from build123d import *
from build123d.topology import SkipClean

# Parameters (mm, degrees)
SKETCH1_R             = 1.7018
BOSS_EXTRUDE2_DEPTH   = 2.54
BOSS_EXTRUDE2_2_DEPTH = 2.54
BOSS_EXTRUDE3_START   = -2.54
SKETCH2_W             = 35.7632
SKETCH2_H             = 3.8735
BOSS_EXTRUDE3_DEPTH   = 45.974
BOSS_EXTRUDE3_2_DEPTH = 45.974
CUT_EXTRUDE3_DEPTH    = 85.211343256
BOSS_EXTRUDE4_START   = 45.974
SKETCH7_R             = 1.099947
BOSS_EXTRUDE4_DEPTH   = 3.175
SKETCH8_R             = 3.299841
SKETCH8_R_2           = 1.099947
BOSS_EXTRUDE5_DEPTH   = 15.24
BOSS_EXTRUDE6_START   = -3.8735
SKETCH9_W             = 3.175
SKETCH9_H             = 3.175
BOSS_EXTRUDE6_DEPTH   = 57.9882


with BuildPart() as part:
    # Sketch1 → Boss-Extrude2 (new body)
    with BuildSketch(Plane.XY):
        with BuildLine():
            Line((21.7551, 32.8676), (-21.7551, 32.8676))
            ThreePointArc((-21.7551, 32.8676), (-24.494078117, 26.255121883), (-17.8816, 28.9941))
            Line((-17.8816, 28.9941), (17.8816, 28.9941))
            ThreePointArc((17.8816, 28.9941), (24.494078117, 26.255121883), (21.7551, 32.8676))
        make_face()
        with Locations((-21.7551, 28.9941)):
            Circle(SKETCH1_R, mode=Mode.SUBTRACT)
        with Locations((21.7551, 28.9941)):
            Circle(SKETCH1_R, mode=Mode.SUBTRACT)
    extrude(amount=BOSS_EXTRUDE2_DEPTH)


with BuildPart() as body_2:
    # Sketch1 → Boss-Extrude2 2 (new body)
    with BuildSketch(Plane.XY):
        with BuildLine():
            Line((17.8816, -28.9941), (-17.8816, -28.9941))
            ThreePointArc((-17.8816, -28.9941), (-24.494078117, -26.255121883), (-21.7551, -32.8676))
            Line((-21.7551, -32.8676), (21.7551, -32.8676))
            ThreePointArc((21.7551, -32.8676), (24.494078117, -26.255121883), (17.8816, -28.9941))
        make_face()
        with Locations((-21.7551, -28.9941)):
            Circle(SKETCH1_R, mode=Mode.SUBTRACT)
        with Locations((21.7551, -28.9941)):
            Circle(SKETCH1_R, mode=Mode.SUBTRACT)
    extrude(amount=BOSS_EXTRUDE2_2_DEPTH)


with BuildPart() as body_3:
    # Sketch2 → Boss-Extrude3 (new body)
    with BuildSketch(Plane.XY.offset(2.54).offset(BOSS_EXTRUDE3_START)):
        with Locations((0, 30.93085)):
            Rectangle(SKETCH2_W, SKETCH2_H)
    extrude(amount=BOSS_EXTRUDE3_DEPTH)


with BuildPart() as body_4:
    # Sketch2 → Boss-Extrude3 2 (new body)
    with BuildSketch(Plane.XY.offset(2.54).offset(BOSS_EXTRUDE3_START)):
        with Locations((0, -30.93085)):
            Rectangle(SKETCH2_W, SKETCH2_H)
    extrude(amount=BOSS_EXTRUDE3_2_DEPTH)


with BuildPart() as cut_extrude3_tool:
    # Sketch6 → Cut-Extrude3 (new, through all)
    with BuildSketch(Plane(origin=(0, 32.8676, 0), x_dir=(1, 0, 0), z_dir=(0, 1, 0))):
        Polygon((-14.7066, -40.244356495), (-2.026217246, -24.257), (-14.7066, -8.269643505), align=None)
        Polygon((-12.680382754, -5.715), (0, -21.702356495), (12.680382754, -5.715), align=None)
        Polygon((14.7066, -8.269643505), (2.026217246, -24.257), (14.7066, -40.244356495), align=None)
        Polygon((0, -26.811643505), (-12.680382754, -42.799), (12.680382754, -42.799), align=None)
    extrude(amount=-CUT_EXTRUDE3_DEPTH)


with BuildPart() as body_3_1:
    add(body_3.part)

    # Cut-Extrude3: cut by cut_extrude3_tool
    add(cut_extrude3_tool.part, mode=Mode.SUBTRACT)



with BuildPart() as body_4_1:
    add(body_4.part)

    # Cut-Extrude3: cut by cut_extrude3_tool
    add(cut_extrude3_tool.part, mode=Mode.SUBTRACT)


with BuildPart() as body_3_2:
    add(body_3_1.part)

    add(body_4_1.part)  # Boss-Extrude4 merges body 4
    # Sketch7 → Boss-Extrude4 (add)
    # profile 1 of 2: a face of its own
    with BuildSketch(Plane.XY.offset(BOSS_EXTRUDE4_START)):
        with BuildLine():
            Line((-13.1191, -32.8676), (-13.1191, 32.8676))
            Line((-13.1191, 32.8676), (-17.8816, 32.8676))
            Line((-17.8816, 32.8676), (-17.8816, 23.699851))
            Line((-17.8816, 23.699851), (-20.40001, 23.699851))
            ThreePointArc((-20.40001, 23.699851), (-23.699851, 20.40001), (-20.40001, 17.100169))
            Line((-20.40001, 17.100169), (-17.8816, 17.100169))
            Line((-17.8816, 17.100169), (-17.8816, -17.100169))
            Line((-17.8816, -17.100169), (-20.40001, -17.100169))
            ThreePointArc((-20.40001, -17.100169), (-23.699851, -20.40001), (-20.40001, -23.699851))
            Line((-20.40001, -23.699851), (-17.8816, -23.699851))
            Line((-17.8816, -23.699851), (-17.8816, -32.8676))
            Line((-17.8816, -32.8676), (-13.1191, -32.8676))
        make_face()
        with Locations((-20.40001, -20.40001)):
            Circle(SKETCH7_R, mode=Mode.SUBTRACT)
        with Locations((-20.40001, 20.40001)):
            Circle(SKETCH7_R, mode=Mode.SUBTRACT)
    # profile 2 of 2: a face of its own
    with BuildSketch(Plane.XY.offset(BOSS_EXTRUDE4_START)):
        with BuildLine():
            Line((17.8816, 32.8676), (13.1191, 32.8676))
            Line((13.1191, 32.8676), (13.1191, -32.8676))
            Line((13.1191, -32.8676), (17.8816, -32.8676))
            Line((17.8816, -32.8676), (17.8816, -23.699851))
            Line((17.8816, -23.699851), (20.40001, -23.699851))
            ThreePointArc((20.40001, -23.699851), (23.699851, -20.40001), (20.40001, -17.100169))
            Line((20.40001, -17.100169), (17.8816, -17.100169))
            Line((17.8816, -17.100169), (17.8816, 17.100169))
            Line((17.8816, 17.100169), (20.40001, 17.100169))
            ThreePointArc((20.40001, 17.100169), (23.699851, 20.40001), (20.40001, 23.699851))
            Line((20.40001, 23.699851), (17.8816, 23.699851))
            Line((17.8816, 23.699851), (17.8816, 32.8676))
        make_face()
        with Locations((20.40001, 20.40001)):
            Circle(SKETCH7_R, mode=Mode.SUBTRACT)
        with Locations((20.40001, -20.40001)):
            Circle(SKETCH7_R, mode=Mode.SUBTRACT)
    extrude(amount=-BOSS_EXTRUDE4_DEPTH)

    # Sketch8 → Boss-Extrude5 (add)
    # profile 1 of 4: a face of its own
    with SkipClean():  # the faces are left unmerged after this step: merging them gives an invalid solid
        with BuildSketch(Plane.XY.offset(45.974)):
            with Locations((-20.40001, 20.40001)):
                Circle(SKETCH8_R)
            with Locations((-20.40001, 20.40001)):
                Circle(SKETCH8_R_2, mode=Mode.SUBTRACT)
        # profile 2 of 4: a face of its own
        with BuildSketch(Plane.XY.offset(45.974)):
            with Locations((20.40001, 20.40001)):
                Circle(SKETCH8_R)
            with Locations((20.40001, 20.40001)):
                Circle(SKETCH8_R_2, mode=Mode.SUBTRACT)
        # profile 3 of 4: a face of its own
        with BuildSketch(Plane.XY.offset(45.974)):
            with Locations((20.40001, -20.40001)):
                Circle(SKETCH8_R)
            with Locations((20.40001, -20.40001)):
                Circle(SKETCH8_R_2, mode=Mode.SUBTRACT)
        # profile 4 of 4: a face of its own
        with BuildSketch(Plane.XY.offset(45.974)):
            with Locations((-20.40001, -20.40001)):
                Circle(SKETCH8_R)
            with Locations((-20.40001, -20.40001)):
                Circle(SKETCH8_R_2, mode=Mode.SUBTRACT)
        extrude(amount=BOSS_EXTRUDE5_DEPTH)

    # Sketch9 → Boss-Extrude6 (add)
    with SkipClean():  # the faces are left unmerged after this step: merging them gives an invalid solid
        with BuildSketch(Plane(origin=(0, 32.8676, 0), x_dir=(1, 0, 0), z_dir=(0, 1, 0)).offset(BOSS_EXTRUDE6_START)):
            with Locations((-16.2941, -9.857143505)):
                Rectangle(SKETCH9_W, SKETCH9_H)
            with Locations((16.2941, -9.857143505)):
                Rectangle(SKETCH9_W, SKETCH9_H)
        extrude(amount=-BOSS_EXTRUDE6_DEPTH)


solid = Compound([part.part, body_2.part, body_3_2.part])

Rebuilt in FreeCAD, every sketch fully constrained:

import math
import FreeCAD as App
import Part
import Sketcher

V = App.Vector
Q = App.Units.Quantity


def add_polygon(sketch, points):
    """Adds a closed chain of lines whose ends are joined by coincident constraints."""
    first, n = sketch.GeometryCount, len(points)
    for a, b in zip(points, points[1:] + points[:1]):
        sketch.addGeometry(Part.LineSegment(App.Vector(*a, 0), App.Vector(*b, 0)), False)
    for i in range(n):
        sketch.addConstraint(Sketcher.Constraint("Coincident", first + i, 2, first + (i + 1) % n, 1))

doc = App.newDocument("Part")
body = doc.addObject("PartDesign::Body", "Body")

# Sketch on XY plane
sketch1 = doc.addObject("Sketcher::SketchObject", "Sketch")
body.addObject(sketch1)
sketch1.AttachmentSupport = (doc.XY_Plane, [""])
sketch1.MapMode = "FlatFace"
sketch1.addGeometry([
    Part.LineSegment(V(21.8, 32.9, 0), V(-21.8, 32.9, 0)),  # 0
    Part.ArcOfCircle(Part.Circle(V(-21.8, 29, 0), V(0, 0, 1), 3.9), math.radians(90), math.radians(360)),  # 1
    Part.LineSegment(V(-17.9, 29, 0), V(17.9, 29, 0)),  # 2
    Part.ArcOfCircle(Part.Circle(V(21.8, 29, 0), V(0, 0, 1), 3.9), math.radians(180), math.radians(450)),  # 3
    Part.Circle(V(-21.8, 29, 0), V(0, 0, 1), 1.7),  # 4
    Part.Circle(V(21.8, 29, 0), V(0, 0, 1), 1.7),  # 5
], False)
sketch1.addConstraint([
    Sketcher.Constraint("Tangent", 0, 2, 1, 1),
    Sketcher.Constraint("Coincident", 1, 2, 2, 1),
    Sketcher.Constraint("Coincident", 2, 2, 3, 1),
    Sketcher.Constraint("Tangent", 3, 2, 0, 1),
    Sketcher.Constraint("Horizontal", 0),
    Sketcher.Constraint("Horizontal", 2),
    Sketcher.Constraint("Coincident", 4, 3, 1, 3),
    Sketcher.Constraint("Coincident", 5, 3, 3, 3),
    Sketcher.Constraint("Equal", 1, 3),
    Sketcher.Constraint("Equal", 4, 5),
    Sketcher.Constraint("Horizontal", 5, 3, 1, 2),
    Sketcher.Constraint("Diameter", 4, Q("0.134 in")),
    Sketcher.Constraint("Radius", 1, Q("0.1525 in")),
    Sketcher.Constraint("DistanceX", 0, 2, 0, 1, Q("1.713 in")),
    Sketcher.Constraint("DistanceY", -1, 1, 0, 2, Q("1.294 in")),
    Sketcher.Constraint("DistanceX", 1, 2, -1, 1, Q("0.704 in")),
])
pad1 = doc.addObject("PartDesign::Pad", "Pad")
body.addObject(pad1)
pad1.Profile = sketch1
pad1.Length = Q("0.1 in")
body2 = doc.addObject("PartDesign::Body", "Body001")

# Sketch on XY plane
sketch2 = doc.addObject("Sketcher::SketchObject", "Sketch001")
body2.addObject(sketch2)
sketch2.AttachmentSupport = (doc.getObject("XY_Plane001"), [""])
sketch2.MapMode = "FlatFace"
sketch2.addGeometry([
    Part.LineSegment(V(17.9, -29, 0), V(-17.9, -29, 0)),  # 0
    Part.ArcOfCircle(Part.Circle(V(-21.8, -29, 0), V(0, 0, 1), 3.9), math.radians(0), math.radians(270)),  # 1
    Part.LineSegment(V(-21.8, -32.9, 0), V(21.8, -32.9, 0)),  # 2
    Part.ArcOfCircle(Part.Circle(V(21.8, -29, 0), V(0, 0, 1), 3.9), math.radians(-90), math.radians(180)),  # 3
    Part.Circle(V(-21.8, -29, 0), V(0, 0, 1), 1.7),  # 4
    Part.Circle(V(21.8, -29, 0), V(0, 0, 1), 1.7),  # 5
], False)
sketch2.addConstraint([
    Sketcher.Constraint("Coincident", 0, 2, 1, 1),
    Sketcher.Constraint("Tangent", 1, 2, 2, 1),
    Sketcher.Constraint("Tangent", 2, 2, 3, 1),
    Sketcher.Constraint("Coincident", 3, 2, 0, 1),
    Sketcher.Constraint("Horizontal", 0),
    Sketcher.Constraint("Horizontal", 2),
    Sketcher.Constraint("Coincident", 4, 3, 1, 3),
    Sketcher.Constraint("Coincident", 5, 3, 3, 3),
    Sketcher.Constraint("Equal", 1, 3),
    Sketcher.Constraint("Equal", 4, 5),
    Sketcher.Constraint("Horizontal", 5, 3, 0, 2),
    Sketcher.Constraint("Diameter", 4, Q("0.134 in")),
    Sketcher.Constraint("Radius", 1, Q("0.1525 in")),
    Sketcher.Constraint("DistanceX", 0, 2, 0, 1, Q("1.408 in")),
    Sketcher.Constraint("DistanceX", 0, 2, -1, 1, Q("0.704 in")),
    Sketcher.Constraint("DistanceY", 1, 2, -1, 1, Q("1.294 in")),
])
pad2 = doc.addObject("PartDesign::Pad", "Pad001")
body2.addObject(pad2)
pad2.Profile = sketch2
pad2.Length = Q("0.1 in")
body3 = doc.addObject("PartDesign::Body", "Body002")

# Sketch on XY plane
sketch3 = doc.addObject("Sketcher::SketchObject", "Sketch002")
body3.addObject(sketch3)
sketch3.AttachmentSupport = (doc.getObject("XY_Plane002"), [""])
sketch3.MapMode = "FlatFace"
add_polygon(sketch3, [(-17.9, 32.9), (-17.9, 29), (17.9, 29), (17.9, 32.9)])  # lines 0-3
sketch3.addConstraint([
    Sketcher.Constraint("Vertical", 0),
    Sketcher.Constraint("Horizontal", 1),
    Sketcher.Constraint("Vertical", 2),
    Sketcher.Constraint("Horizontal", 3),
    Sketcher.Constraint("DistanceX", 1, 1, 1, 2, Q("1.408 in")),
    Sketcher.Constraint("DistanceY", 0, 2, 0, 1, Q("0.1525 in")),
    Sketcher.Constraint("DistanceX", 0, 2, -1, 1, Q("0.704 in")),
    Sketcher.Constraint("DistanceY", -1, 1, 2, 2, Q("1.294 in")),
])
pad3 = doc.addObject("PartDesign::Pad", "Pad002")
body3.addObject(pad3)
pad3.Profile = sketch3
pad3.Length = Q("1.81 in")
body4 = doc.addObject("PartDesign::Body", "Body003")

# Sketch on XY plane
sketch4 = doc.addObject("Sketcher::SketchObject", "Sketch003")
body4.addObject(sketch4)
sketch4.AttachmentSupport = (doc.getObject("XY_Plane003"), [""])
sketch4.MapMode = "FlatFace"
add_polygon(sketch4, [(-17.9, -29), (-17.9, -32.9), (17.9, -32.9), (17.9, -29)])  # lines 0-3
sketch4.addConstraint([
    Sketcher.Constraint("Vertical", 0),
    Sketcher.Constraint("Horizontal", 1),
    Sketcher.Constraint("Vertical", 2),
    Sketcher.Constraint("Horizontal", 3),
    Sketcher.Constraint("DistanceX", 1, 1, 1, 2, Q("1.408 in")),
    Sketcher.Constraint("DistanceY", 0, 2, 0, 1, Q("0.1525 in")),
    Sketcher.Constraint("DistanceX", 0, 2, -1, 1, Q("0.704 in")),
    Sketcher.Constraint("DistanceY", 0, 2, -1, 1, Q("1.294 in")),
])
pad4 = doc.addObject("PartDesign::Pad", "Pad003")
body4.addObject(pad4)
pad4.Profile = sketch4
pad4.Length = Q("1.81 in")
body5 = doc.addObject("PartDesign::Body", "Body004")
body5.AllowCompound = True

# Sketch on XZ plane
sketch5 = doc.addObject("Sketcher::SketchObject", "Sketch004")
body5.addObject(sketch5)
sketch5.AttachmentSupport = (doc.getObject("XZ_Plane004"), [""])
sketch5.MapMode = "FlatFace"
sketch5.AttachmentOffset = App.Placement(V(0, 0, -1.294 * 25.4), App.Rotation())
add_polygon(sketch5, [(-15, 40), (-2, 24), (-15, 8)])  # lines 0-2
add_polygon(sketch5, [(-13, 6), (0, 22), (13, 6)])  # lines 3-5
add_polygon(sketch5, [(15, 8), (2, 24), (15, 40)])  # lines 6-8
add_polygon(sketch5, [(0, 27), (-13, 43), (13, 43)])  # lines 9-11
sketch5.addConstraint([
    Sketcher.Constraint("Vertical", 2),
    Sketcher.Constraint("Horizontal", 5),
    Sketcher.Constraint("Vertical", 8),
    Sketcher.Constraint("Horizontal", 10),
    Sketcher.Constraint("Symmetric", 0, 2, 6, 2, -2),
    Sketcher.Constraint("Symmetric", 2, 2, 7, 2, -2),
    Sketcher.Constraint("PointOnObject", 3, 2, -2),
    Sketcher.Constraint("PointOnObject", 11, 2, -2),
    Sketcher.Constraint("Parallel", 1, 3),
    Sketcher.Constraint("Parallel", 0, 4),
    Sketcher.Constraint("Parallel", 4, 6),
    Sketcher.Constraint("Parallel", 3, 7),
    Sketcher.Constraint("Parallel", 6, 9),
    Sketcher.Constraint("Parallel", 7, 11),
    Sketcher.Constraint("Vertical", 5, 2, 9, 2),
    Sketcher.Constraint("Equal", 1, 3),
    Sketcher.Constraint("DistanceY", 3, 2, 2, 2, Q("0.73 in")),
    Sketcher.Constraint("DistanceY", 0, 2, 9, 2, Q("0.73 in")),
    Sketcher.Constraint("DistanceY", -1, 1, 0, 2, Q("0.955 in")),
    Sketcher.Constraint("DistanceX", 1, 2, -1, 1, Q("0.579 in")),
    Sketcher.Constraint("Distance", 0, Q("20.405579 mm")),
    Sketcher.Constraint("DistanceX", 5, 2, 5, 1, Q("25.360766 mm")),
])
pad5 = doc.addObject("PartDesign::Pad", "Pad004")
body5.addObject(pad5)
pad5.Profile = sketch5
pad5.Length = 85.211343
doc.recompute()

body6 = doc.addObject("PartDesign::Body", "Body005")
body6.BaseFeature = body5
boolean = doc.addObject("PartDesign::Boolean", "Boolean")
body3.addObject(boolean)
boolean.Type = "Cut"
boolean.addObjects([body6])
doc.recompute()

boolean2 = doc.addObject("PartDesign::Boolean", "Boolean001")
body4.addObject(boolean2)
boolean2.Type = "Cut"
boolean2.addObjects([body5])
body3.AllowCompound = True
doc.recompute()

boolean3 = doc.addObject("PartDesign::Boolean", "Boolean002")
body3.addObject(boolean3)
boolean3.Type = "Fuse"
boolean3.addObjects([body4])

# Sketch on XY plane
sketch6 = doc.addObject("Sketcher::SketchObject", "Sketch005")
body3.addObject(sketch6)
sketch6.AttachmentSupport = (doc.getObject("XY_Plane002"), [""])
sketch6.MapMode = "FlatFace"
sketch6.AttachmentOffset = App.Placement(V(0, 0, 1.81 * 25.4), App.Rotation())
sketch6.addGeometry([
    Part.LineSegment(V(-13.1, -32.9, 0), V(-13.1, 32.9, 0)),  # 0
    Part.LineSegment(V(-13.1, 32.9, 0), V(-17.9, 32.9, 0)),  # 1
    Part.LineSegment(V(-17.9, 32.9, 0), V(-17.9, 23.7, 0)),  # 2
    Part.LineSegment(V(-17.9, 23.7, 0), V(-20.4, 23.7, 0)),  # 3
    Part.ArcOfCircle(Part.Circle(V(-20.4, 20.4, 0), V(0, 0, 1), 3.3), math.radians(90), math.radians(270)),  # 4
    Part.LineSegment(V(-20.4, 17.1, 0), V(-17.9, 17.1, 0)),  # 5
    Part.LineSegment(V(-17.9, 17.1, 0), V(-17.9, -17.1, 0)),  # 6
    Part.LineSegment(V(-17.9, -17.1, 0), V(-20.4, -17.1, 0)),  # 7
    Part.ArcOfCircle(Part.Circle(V(-20.4, -20.4, 0), V(0, 0, 1), 3.3), math.radians(90), math.radians(270)),  # 8
    Part.LineSegment(V(-20.4, -23.7, 0), V(-17.9, -23.7, 0)),  # 9
    Part.LineSegment(V(-17.9, -23.7, 0), V(-17.9, -32.9, 0)),  # 10
    Part.LineSegment(V(-17.9, -32.9, 0), V(-13.1, -32.9, 0)),  # 11
    Part.Circle(V(-20.4, -20.4, 0), V(0, 0, 1), 1.1),  # 12
    Part.Circle(V(-20.4, 20.4, 0), V(0, 0, 1), 1.1),  # 13
    Part.LineSegment(V(17.9, 32.9, 0), V(13.1, 32.9, 0)),  # 14
    Part.LineSegment(V(13.1, 32.9, 0), V(13.1, -32.9, 0)),  # 15
    Part.LineSegment(V(13.1, -32.9, 0), V(17.9, -32.9, 0)),  # 16
    Part.LineSegment(V(17.9, -32.9, 0), V(17.9, -23.7, 0)),  # 17
    Part.LineSegment(V(17.9, -23.7, 0), V(20.4, -23.7, 0)),  # 18
    Part.ArcOfCircle(Part.Circle(V(20.4, -20.4, 0), V(0, 0, 1), 3.3), math.radians(-90), math.radians(90)),  # 19
    Part.LineSegment(V(20.4, -17.1, 0), V(17.9, -17.1, 0)),  # 20
    Part.LineSegment(V(17.9, -17.1, 0), V(17.9, 17.1, 0)),  # 21
    Part.LineSegment(V(17.9, 17.1, 0), V(20.4, 17.1, 0)),  # 22
    Part.ArcOfCircle(Part.Circle(V(20.4, 20.4, 0), V(0, 0, 1), 3.3), math.radians(-90), math.radians(90)),  # 23
    Part.LineSegment(V(20.4, 23.7, 0), V(17.9, 23.7, 0)),  # 24
    Part.LineSegment(V(17.9, 23.7, 0), V(17.9, 32.9, 0)),  # 25
    Part.Circle(V(20.4, -20.4, 0), V(0, 0, 1), 1.1),  # 26
    Part.Circle(V(20.4, 20.4, 0), V(0, 0, 1), 1.1),  # 27
], False)
sketch6.addConstraint([
    Sketcher.Constraint("Coincident", 0, 2, 1, 1),
    Sketcher.Constraint("Coincident", 1, 2, 2, 1),
    Sketcher.Constraint("Coincident", 2, 2, 3, 1),
    Sketcher.Constraint("Tangent", 3, 2, 4, 1),
    Sketcher.Constraint("Tangent", 4, 2, 5, 1),
    Sketcher.Constraint("Coincident", 5, 2, 6, 1),
    Sketcher.Constraint("Coincident", 6, 2, 7, 1),
    Sketcher.Constraint("Tangent", 7, 2, 8, 1),
    Sketcher.Constraint("Tangent", 8, 2, 9, 1),
    Sketcher.Constraint("Coincident", 9, 2, 10, 1),
    Sketcher.Constraint("Coincident", 10, 2, 11, 1),
    Sketcher.Constraint("Coincident", 11, 2, 0, 1),
    Sketcher.Constraint("Coincident", 14, 2, 15, 1),
    Sketcher.Constraint("Coincident", 15, 2, 16, 1),
    Sketcher.Constraint("Coincident", 16, 2, 17, 1),
    Sketcher.Constraint("Coincident", 17, 2, 18, 1),
    Sketcher.Constraint("Tangent", 18, 2, 19, 1),
    Sketcher.Constraint("Tangent", 19, 2, 20, 1),
    Sketcher.Constraint("Coincident", 20, 2, 21, 1),
    Sketcher.Constraint("Coincident", 21, 2, 22, 1),
    Sketcher.Constraint("Tangent", 22, 2, 23, 1),
    Sketcher.Constraint("Tangent", 23, 2, 24, 1),
    Sketcher.Constraint("Coincident", 24, 2, 25, 1),
    Sketcher.Constraint("Coincident", 25, 2, 14, 1),
    Sketcher.Constraint("Vertical", 0),
    Sketcher.Constraint("Horizontal", 1),
    Sketcher.Constraint("Vertical", 2),
    Sketcher.Constraint("Horizontal", 3),
    Sketcher.Constraint("Horizontal", 5),
    Sketcher.Constraint("Vertical", 6),
    Sketcher.Constraint("Horizontal", 7),
    Sketcher.Constraint("Horizontal", 9),
    Sketcher.Constraint("Vertical", 10),
    Sketcher.Constraint("Horizontal", 11),
    Sketcher.Constraint("Horizontal", 14),
    Sketcher.Constraint("Vertical", 15),
    Sketcher.Constraint("Horizontal", 16),
    Sketcher.Constraint("Vertical", 17),
    Sketcher.Constraint("Horizontal", 18),
    Sketcher.Constraint("Horizontal", 20),
    Sketcher.Constraint("Vertical", 21),
    Sketcher.Constraint("Horizontal", 22),
    Sketcher.Constraint("Horizontal", 24),
    Sketcher.Constraint("Vertical", 25),
    Sketcher.Constraint("Coincident", 12, 3, 8, 3),
    Sketcher.Constraint("Coincident", 13, 3, 4, 3),
    Sketcher.Constraint("Coincident", 26, 3, 19, 3),
    Sketcher.Constraint("Coincident", 27, 3, 23, 3),
    Sketcher.Constraint("Equal", 4, 8),
    Sketcher.Constraint("Equal", 12, 13),
    Sketcher.Constraint("Equal", 8, 19),
    Sketcher.Constraint("Equal", 19, 23),
    Sketcher.Constraint("Equal", 13, 26),
    Sketcher.Constraint("Equal", 26, 27),
    Sketcher.Constraint("Symmetric", 4, 3, 19, 3, -1, 1),
    Sketcher.Constraint("Symmetric", 8, 3, 23, 3, -1, 1),
    Sketcher.Constraint("Symmetric", 11, 2, 14, 2, -1, 1),
    Sketcher.Constraint("Symmetric", 1, 2, 16, 2, -1, 1),
    Sketcher.Constraint("Symmetric", 8, 3, 19, 3, -2),
    Sketcher.Constraint("Symmetric", 10, 2, 16, 2, -2),
    Sketcher.Constraint("Vertical", 2, 2, 5, 2),
    Sketcher.Constraint("Vertical", 17, 2, 20, 2),
    Sketcher.Constraint("Vertical", 21, 2, 24, 2),
    Sketcher.Constraint("DistanceX", 1, 2, 1, 1, Q("0.1875 in")),
    Sketcher.Constraint("DistanceY", 0, 1, 0, 2, Q("2.588 in")),
    Sketcher.Constraint("DistanceX", 1, 2, -1, 1, Q("0.704 in")),
    Sketcher.Constraint("Radius", 4, Q("3.299841 mm")),
    Sketcher.Constraint("Diameter", 12, Q("2.199894 mm")),
    Sketcher.Constraint("DistanceY", 8, 3, 4, 3, Q("1.6063 in")),
    Sketcher.Constraint("DistanceX", 8, 3, 19, 3, Q("1.6063 in")),
])
pad6 = doc.addObject("PartDesign::Pad", "Pad005")
body3.addObject(pad6)
pad6.Profile = sketch6
pad6.Length = Q("0.125 in")
pad6.Reversed = True

# Sketch on XY plane
sketch7 = doc.addObject("Sketcher::SketchObject", "Sketch006")
body3.addObject(sketch7)
sketch7.AttachmentSupport = (doc.getObject("XY_Plane002"), [""])
sketch7.MapMode = "FlatFace"
sketch7.AttachmentOffset = App.Placement(V(0, 0, 1.81 * 25.4), App.Rotation())
sketch7.addGeometry([
    Part.Circle(V(-20.4, 20.4, 0), V(0, 0, 1), 3.3),  # 0
    Part.Circle(V(-20.4, 20.4, 0), V(0, 0, 1), 1.1),  # 1
    Part.Circle(V(20.4, 20.4, 0), V(0, 0, 1), 3.3),  # 2
    Part.Circle(V(20.4, 20.4, 0), V(0, 0, 1), 1.1),  # 3
    Part.Circle(V(20.4, -20.4, 0), V(0, 0, 1), 3.3),  # 4
    Part.Circle(V(20.4, -20.4, 0), V(0, 0, 1), 1.1),  # 5
    Part.Circle(V(-20.4, -20.4, 0), V(0, 0, 1), 3.3),  # 6
    Part.Circle(V(-20.4, -20.4, 0), V(0, 0, 1), 1.1),  # 7
], False)
sketch7.addConstraint([
    Sketcher.Constraint("Coincident", 1, 3, 0, 3),
    Sketcher.Constraint("Coincident", 3, 3, 2, 3),
    Sketcher.Constraint("Coincident", 5, 3, 4, 3),
    Sketcher.Constraint("Coincident", 7, 3, 6, 3),
    Sketcher.Constraint("Equal", 0, 2),
    Sketcher.Constraint("Equal", 1, 3),
    Sketcher.Constraint("Equal", 2, 4),
    Sketcher.Constraint("Equal", 3, 5),
    Sketcher.Constraint("Equal", 4, 6),
    Sketcher.Constraint("Equal", 5, 7),
    Sketcher.Constraint("Symmetric", 0, 3, 4, 3, -1, 1),
    Sketcher.Constraint("Symmetric", 2, 3, 6, 3, -1, 1),
    Sketcher.Constraint("Symmetric", 0, 3, 2, 3, -2),
    Sketcher.Constraint("Diameter", 0, Q("6.599682 mm")),
    Sketcher.Constraint("Diameter", 1, Q("2.199894 mm")),
    Sketcher.Constraint("DistanceX", 0, 3, 2, 3, Q("1.6063 in")),
    Sketcher.Constraint("DistanceY", 4, 3, 2, 3, Q("1.6063 in")),
])
pad7 = doc.addObject("PartDesign::Pad", "Pad006")
body3.addObject(pad7)
pad7.Profile = sketch7
pad7.Length = Q("0.6 in")

# Sketch on XZ plane
sketch8 = doc.addObject("Sketcher::SketchObject", "Sketch007")
body3.addObject(sketch8)
sketch8.AttachmentSupport = (doc.getObject("XZ_Plane002"), [""])
sketch8.MapMode = "FlatFace"
sketch8.AttachmentOffset = App.Placement(V(0, 0, -1.1415 * 25.4), App.Rotation())
add_polygon(sketch8, [(-17.9, 8.3), (-17.9, 11.4), (-14.7, 11.4), (-14.7, 8.3)])  # lines 0-3
add_polygon(sketch8, [(14.7, 8.3), (14.7, 11.4), (17.9, 11.4), (17.9, 8.3)])  # lines 4-7
sketch8.addConstraint([
    Sketcher.Constraint("Vertical", 0),
    Sketcher.Constraint("Horizontal", 1),
    Sketcher.Constraint("Vertical", 2),
    Sketcher.Constraint("Horizontal", 3),
    Sketcher.Constraint("Vertical", 4),
    Sketcher.Constraint("Horizontal", 5),
    Sketcher.Constraint("Vertical", 6),
    Sketcher.Constraint("Horizontal", 7),
    Sketcher.Constraint("Symmetric", 1, 2, 4, 2, -2),
    Sketcher.Constraint("Symmetric", 3, 2, 6, 2, -2),
    Sketcher.Constraint("Equal", 7, 0),
    Sketcher.Constraint("DistanceX", 1, 1, 1, 2, Q("0.125 in")),
    Sketcher.Constraint("DistanceX", 0, 2, -1, 1, Q("0.704 in")),
    Sketcher.Constraint("DistanceY", -1, 1, 0, 2, Q("11.444644 mm")),
])
pad8 = doc.addObject("PartDesign::Pad", "Pad007")
body3.addObject(pad8)
pad8.Profile = sketch8
pad8.Length = Q("2.283 in")

doc.recompute()
